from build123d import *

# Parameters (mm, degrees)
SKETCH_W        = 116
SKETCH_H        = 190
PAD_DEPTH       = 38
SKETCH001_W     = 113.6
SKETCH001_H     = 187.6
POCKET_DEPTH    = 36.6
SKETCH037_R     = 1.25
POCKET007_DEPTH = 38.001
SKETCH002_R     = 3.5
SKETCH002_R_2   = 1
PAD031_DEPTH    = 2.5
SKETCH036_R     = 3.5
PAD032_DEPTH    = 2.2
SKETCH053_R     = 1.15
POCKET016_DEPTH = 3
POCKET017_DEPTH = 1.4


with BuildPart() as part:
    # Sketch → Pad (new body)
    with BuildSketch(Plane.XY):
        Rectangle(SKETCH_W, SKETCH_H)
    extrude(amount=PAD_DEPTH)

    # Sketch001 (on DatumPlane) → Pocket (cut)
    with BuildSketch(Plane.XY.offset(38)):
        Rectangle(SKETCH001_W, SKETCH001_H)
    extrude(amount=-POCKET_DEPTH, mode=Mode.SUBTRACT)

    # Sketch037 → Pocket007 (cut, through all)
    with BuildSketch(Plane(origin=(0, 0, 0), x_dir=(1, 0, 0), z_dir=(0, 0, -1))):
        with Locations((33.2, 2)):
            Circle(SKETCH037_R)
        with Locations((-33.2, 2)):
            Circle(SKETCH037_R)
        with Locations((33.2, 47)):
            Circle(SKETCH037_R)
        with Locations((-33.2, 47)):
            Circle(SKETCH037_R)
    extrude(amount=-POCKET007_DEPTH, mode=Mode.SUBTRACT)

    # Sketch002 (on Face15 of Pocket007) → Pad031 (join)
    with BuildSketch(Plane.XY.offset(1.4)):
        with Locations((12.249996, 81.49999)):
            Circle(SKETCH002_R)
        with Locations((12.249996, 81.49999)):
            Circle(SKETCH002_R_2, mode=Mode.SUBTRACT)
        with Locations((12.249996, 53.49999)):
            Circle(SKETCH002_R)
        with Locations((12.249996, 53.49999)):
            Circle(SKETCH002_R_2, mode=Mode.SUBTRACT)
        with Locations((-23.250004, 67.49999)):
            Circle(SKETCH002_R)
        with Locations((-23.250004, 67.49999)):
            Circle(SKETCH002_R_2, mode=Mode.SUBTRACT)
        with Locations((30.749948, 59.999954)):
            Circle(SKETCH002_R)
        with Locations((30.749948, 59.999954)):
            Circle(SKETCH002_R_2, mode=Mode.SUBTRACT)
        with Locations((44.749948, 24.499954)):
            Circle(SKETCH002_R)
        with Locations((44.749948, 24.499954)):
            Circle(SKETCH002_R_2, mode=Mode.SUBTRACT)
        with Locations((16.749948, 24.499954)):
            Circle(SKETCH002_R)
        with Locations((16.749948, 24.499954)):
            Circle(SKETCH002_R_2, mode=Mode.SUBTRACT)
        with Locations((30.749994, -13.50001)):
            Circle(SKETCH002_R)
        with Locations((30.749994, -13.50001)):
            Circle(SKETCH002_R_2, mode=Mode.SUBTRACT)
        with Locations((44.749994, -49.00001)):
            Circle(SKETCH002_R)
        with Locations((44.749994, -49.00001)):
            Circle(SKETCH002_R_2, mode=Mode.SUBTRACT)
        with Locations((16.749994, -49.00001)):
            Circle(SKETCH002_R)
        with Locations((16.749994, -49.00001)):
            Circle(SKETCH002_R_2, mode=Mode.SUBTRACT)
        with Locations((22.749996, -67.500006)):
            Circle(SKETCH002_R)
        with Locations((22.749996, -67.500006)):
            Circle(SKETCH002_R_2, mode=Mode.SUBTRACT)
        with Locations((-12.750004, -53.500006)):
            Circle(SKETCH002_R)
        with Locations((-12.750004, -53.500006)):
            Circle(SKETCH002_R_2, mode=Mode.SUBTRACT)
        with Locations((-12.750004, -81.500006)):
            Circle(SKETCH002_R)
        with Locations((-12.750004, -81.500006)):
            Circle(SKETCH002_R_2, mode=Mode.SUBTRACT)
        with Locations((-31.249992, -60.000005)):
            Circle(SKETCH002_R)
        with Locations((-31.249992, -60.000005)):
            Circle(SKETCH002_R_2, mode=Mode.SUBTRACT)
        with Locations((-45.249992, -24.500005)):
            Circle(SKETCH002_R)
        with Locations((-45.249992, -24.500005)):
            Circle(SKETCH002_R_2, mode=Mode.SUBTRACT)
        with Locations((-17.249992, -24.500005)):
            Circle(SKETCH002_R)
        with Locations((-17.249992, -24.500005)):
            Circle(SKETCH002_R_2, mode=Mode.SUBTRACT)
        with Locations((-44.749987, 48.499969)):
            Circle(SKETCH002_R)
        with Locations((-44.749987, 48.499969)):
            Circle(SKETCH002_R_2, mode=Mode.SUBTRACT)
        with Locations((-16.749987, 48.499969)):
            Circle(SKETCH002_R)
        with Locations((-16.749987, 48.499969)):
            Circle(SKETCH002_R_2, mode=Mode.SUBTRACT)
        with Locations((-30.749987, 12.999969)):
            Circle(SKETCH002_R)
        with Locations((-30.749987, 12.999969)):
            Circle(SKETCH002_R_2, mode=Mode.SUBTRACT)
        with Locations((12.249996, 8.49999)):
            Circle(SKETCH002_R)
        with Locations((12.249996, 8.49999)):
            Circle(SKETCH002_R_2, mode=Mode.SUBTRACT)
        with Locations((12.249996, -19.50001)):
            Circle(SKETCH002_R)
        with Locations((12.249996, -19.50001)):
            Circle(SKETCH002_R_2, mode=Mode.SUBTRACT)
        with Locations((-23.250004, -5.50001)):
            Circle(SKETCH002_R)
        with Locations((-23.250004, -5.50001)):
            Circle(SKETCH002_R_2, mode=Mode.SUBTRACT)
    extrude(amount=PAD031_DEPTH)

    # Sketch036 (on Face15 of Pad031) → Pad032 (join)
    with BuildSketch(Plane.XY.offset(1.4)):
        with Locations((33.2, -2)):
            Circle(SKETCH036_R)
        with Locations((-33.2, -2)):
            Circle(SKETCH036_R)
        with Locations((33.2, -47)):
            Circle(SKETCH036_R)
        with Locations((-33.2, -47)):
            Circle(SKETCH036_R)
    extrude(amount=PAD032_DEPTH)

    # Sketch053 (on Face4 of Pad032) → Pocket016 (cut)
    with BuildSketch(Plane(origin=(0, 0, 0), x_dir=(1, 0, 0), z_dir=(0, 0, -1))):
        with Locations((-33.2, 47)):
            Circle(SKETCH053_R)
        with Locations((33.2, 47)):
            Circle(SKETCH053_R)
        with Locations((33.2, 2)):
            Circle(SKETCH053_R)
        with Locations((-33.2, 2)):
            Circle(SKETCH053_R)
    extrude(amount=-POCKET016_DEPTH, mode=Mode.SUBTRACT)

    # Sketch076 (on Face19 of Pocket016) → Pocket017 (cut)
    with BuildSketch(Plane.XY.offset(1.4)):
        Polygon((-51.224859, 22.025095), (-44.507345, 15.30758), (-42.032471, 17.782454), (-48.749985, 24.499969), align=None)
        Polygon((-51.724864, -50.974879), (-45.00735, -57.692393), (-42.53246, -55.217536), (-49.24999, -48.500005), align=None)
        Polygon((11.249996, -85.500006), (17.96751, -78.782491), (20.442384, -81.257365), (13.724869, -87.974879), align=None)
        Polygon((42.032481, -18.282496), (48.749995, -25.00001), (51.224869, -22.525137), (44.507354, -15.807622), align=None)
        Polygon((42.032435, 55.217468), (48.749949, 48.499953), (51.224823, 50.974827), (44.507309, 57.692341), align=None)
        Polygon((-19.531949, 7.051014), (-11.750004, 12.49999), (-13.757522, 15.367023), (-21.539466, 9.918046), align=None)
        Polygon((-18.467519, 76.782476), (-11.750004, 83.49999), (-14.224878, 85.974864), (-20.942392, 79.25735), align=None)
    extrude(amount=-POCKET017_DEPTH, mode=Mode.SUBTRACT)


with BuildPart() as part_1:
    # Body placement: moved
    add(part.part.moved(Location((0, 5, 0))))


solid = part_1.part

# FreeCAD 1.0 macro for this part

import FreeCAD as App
import Part
import Sketcher

V = App.Vector
Q = App.Units.Quantity

doc = App.newDocument("Part")
body = doc.addObject("PartDesign::Body", "Body")

# Sketch on XY plane
sketch1 = body.newObject("Sketcher::SketchObject", "Sketch")
sketch1.AttachmentSupport = (doc.getObject("XY_Plane"), [""])
sketch1.MapMode = "FlatFace"
sketch1.addGeometry(Part.LineSegment(V(-58, 95, 0), V(-58, -95, 0)), False)
sketch1.addGeometry(Part.LineSegment(V(-58, -95, 0), V(58, -95, 0)), False)
sketch1.addGeometry(Part.LineSegment(V(58, -95, 0), V(58, 95, 0)), False)
sketch1.addGeometry(Part.LineSegment(V(58, 95, 0), V(-58, 95, 0)), False)
sketch1.addConstraint(Sketcher.Constraint("Coincident", 0, 2, 1, 1))
sketch1.addConstraint(Sketcher.Constraint("Coincident", 1, 2, 2, 1))
sketch1.addConstraint(Sketcher.Constraint("Coincident", 2, 2, 3, 1))
sketch1.addConstraint(Sketcher.Constraint("Coincident", 3, 2, 0, 1))
sketch1.addConstraint(Sketcher.Constraint("Vertical", 0))
sketch1.addConstraint(Sketcher.Constraint("Horizontal", 1))
sketch1.addConstraint(Sketcher.Constraint("Vertical", 2))
sketch1.addConstraint(Sketcher.Constraint("Horizontal", 3))
sketch1.addConstraint(Sketcher.Constraint("Symmetric", 0, 2, 2, 2, -1, 1))
sketch1.addConstraint(Sketcher.Constraint("DistanceX", 1, 1, 1, 2, 116.0))
sketch1.addConstraint(Sketcher.Constraint("DistanceY", 0, 2, 0, 1, 190.0))
pad1 = body.newObject("PartDesign::Pad", "Pad")
pad1.Profile = sketch1
pad1.Length = 38

# Sketch on XY plane
sketch2 = body.newObject("Sketcher::SketchObject", "Sketch001")
sketch2.AttachmentSupport = (doc.getObject("XY_Plane"), [""])
sketch2.MapMode = "FlatFace"
sketch2.AttachmentOffset = App.Placement(V(0, 0, 38), App.Rotation())
sketch2.addGeometry(Part.LineSegment(V(-57, 94, 0), V(-57, -94, 0)), False)
sketch2.addGeometry(Part.LineSegment(V(-57, -94, 0), V(57, -94, 0)), False)
sketch2.addGeometry(Part.LineSegment(V(57, -94, 0), V(57, 94, 0)), False)
sketch2.addGeometry(Part.LineSegment(V(57, 94, 0), V(-57, 94, 0)), False)
sketch2.addConstraint(Sketcher.Constraint("Coincident", 0, 2, 1, 1))
sketch2.addConstraint(Sketcher.Constraint("Coincident", 1, 2, 2, 1))
sketch2.addConstraint(Sketcher.Constraint("Coincident", 2, 2, 3, 1))
sketch2.addConstraint(Sketcher.Constraint("Coincident", 3, 2, 0, 1))
sketch2.addConstraint(Sketcher.Constraint("Vertical", 0))
sketch2.addConstraint(Sketcher.Constraint("Horizontal", 1))
sketch2.addConstraint(Sketcher.Constraint("Vertical", 2))
sketch2.addConstraint(Sketcher.Constraint("Horizontal", 3))
sketch2.addConstraint(Sketcher.Constraint("Symmetric", 0, 2, 2, 2, -1, 1))
sketch2.addConstraint(Sketcher.Constraint("DistanceX", 1, 1, 1, 2, 113.6))
sketch2.addConstraint(Sketcher.Constraint("DistanceY", 0, 2, 0, 1, 187.6))
pocket1 = body.newObject("PartDesign::Pocket", "Pocket")
pocket1.Profile = sketch2
pocket1.Length = 36.6

# Sketch on XY plane
sketch3 = body.newObject("Sketcher::SketchObject", "Sketch002")
sketch3.AttachmentSupport = (doc.getObject("XY_Plane"), [""])
sketch3.MapMode = "FlatFace"
sketch3.addGeometry(Part.Circle(V(33.2, -2, 0), V(0, 0, 1), 1.2), False)
sketch3.addGeometry(Part.Circle(V(-33.2, -2, 0), V(0, 0, 1), 1.2), False)
sketch3.addGeometry(Part.Circle(V(33.2, -47, 0), V(0, 0, 1), 1.2), False)
sketch3.addGeometry(Part.Circle(V(-33.2, -47, 0), V(0, 0, 1), 1.2), False)
sketch3.addConstraint(Sketcher.Constraint("Equal", 0, 1))
sketch3.addConstraint(Sketcher.Constraint("Equal", 1, 2))
sketch3.addConstraint(Sketcher.Constraint("Equal", 2, 3))
sketch3.addConstraint(Sketcher.Constraint("Symmetric", 0, 3, 1, 3, -2))
sketch3.addConstraint(Sketcher.Constraint("Symmetric", 2, 3, 3, 3, -2))
sketch3.addConstraint(Sketcher.Constraint("Vertical", 0, 3, 2, 3))
sketch3.addConstraint(Sketcher.Constraint("Diameter", 0, 2.5))
sketch3.addConstraint(Sketcher.Constraint("DistanceY", 0, 3, -1, 1, 2.0))
sketch3.addConstraint(Sketcher.Constraint("DistanceY", 2, 3, -1, 1, 47.0))
sketch3.addConstraint(Sketcher.Constraint("DistanceX", -1, 1, 0, 3, 33.2))
pocket2 = body.newObject("PartDesign::Pocket", "Pocket001")
pocket2.Profile = sketch3
pocket2.Type = "ThroughAll"
pocket2.Reversed = True

# Sketch on XY plane
sketch4 = body.newObject("Sketcher::SketchObject", "Sketch003")
sketch4.AttachmentSupport = (doc.getObject("XY_Plane"), [""])
sketch4.MapMode = "FlatFace"
sketch4.AttachmentOffset = App.Placement(V(0, 0, 1.4), App.Rotation())
sketch4.addGeometry(Part.Circle(V(12.2, 81.5, 0), V(0, 0, 1), 3.5), False)
sketch4.addGeometry(Part.Circle(V(12.2, 81.5, 0), V(0, 0, 1), 1), False)
sketch4.addGeometry(Part.Circle(V(12.2, 53.5, 0), V(0, 0, 1), 3.5), False)
sketch4.addGeometry(Part.Circle(V(12.2, 53.5, 0), V(0, 0, 1), 1), False)
sketch4.addGeometry(Part.Circle(V(-23.3, 67.5, 0), V(0, 0, 1), 3.5), False)
sketch4.addGeometry(Part.Circle(V(-23.3, 67.5, 0), V(0, 0, 1), 1), False)
sketch4.addGeometry(Part.Circle(V(30.7, 60, 0), V(0, 0, 1), 3.5), False)
sketch4.addGeometry(Part.Circle(V(30.7, 60, 0), V(0, 0, 1), 1), False)
sketch4.addGeometry(Part.Circle(V(44.7, 24.5, 0), V(0, 0, 1), 3.5), False)
sketch4.addGeometry(Part.Circle(V(44.7, 24.5, 0), V(0, 0, 1), 1), False)
sketch4.addGeometry(Part.Circle(V(16.7, 24.5, 0), V(0, 0, 1), 3.5), False)
sketch4.addGeometry(Part.Circle(V(16.7, 24.5, 0), V(0, 0, 1), 1), False)
sketch4.addGeometry(Part.Circle(V(30.7, -13.5, 0), V(0, 0, 1), 3.5), False)
sketch4.addGeometry(Part.Circle(V(30.7, -13.5, 0), V(0, 0, 1), 1), False)
sketch4.addGeometry(Part.Circle(V(44.7, -49, 0), V(0, 0, 1), 3.5), False)
sketch4.addGeometry(Part.Circle(V(44.7, -49, 0), V(0, 0, 1), 1), False)
sketch4.addGeometry(Part.Circle(V(16.7, -49, 0), V(0, 0, 1), 3.5), False)
sketch4.addGeometry(Part.Circle(V(16.7, -49, 0), V(0, 0, 1), 1), False)
sketch4.addGeometry(Part.Circle(V(22.7, -67.5, 0), V(0, 0, 1), 3.5), False)
sketch4.addGeometry(Part.Circle(V(22.7, -67.5, 0), V(0, 0, 1), 1), False)
sketch4.addGeometry(Part.Circle(V(-12.8, -53.5, 0), V(0, 0, 1), 3.5), False)
sketch4.addGeometry(Part.Circle(V(-12.8, -53.5, 0), V(0, 0, 1), 1), False)
sketch4.addGeometry(Part.Circle(V(-12.8, -81.5, 0), V(0, 0, 1), 3.5), False)
sketch4.addGeometry(Part.Circle(V(-12.8, -81.5, 0), V(0, 0, 1), 1), False)
sketch4.addGeometry(Part.Circle(V(-31.2, -60, 0), V(0, 0, 1), 3.5), False)
sketch4.addGeometry(Part.Circle(V(-31.2, -60, 0), V(0, 0, 1), 1), False)
sketch4.addGeometry(Part.Circle(V(-45.2, -24.5, 0), V(0, 0, 1), 3.5), False)
sketch4.addGeometry(Part.Circle(V(-45.2, -24.5, 0), V(0, 0, 1), 1), False)
sketch4.addGeometry(Part.Circle(V(-17.2, -24.5, 0), V(0, 0, 1), 3.5), False)
sketch4.addGeometry(Part.Circle(V(-17.2, -24.5, 0), V(0, 0, 1), 1), False)
sketch4.addGeometry(Part.Circle(V(-44.7, 48.5, 0), V(0, 0, 1), 3.5), False)
sketch4.addGeometry(Part.Circle(V(-44.7, 48.5, 0), V(0, 0, 1), 1), False)
sketch4.addGeometry(Part.Circle(V(-16.7, 48.5, 0), V(0, 0, 1), 3.5), False)
sketch4.addGeometry(Part.Circle(V(-16.7, 48.5, 0), V(0, 0, 1), 1), False)
sketch4.addGeometry(Part.Circle(V(-30.7, 13, 0), V(0, 0, 1), 3.5), False)
sketch4.addGeometry(Part.Circle(V(-30.7, 13, 0), V(0, 0, 1), 1), False)
sketch4.addGeometry(Part.Circle(V(12.2, 8.5, 0), V(0, 0, 1), 3.5), False)
sketch4.addGeometry(Part.Circle(V(12.2, 8.5, 0), V(0, 0, 1), 1), False)
sketch4.addGeometry(Part.Circle(V(12.2, -19.5, 0), V(0, 0, 1), 3.5), False)
sketch4.addGeometry(Part.Circle(V(12.2, -19.5, 0), V(0, 0, 1), 1), False)
sketch4.addGeometry(Part.Circle(V(-23.3, -5.5, 0), V(0, 0, 1), 3.5), False)
sketch4.addGeometry(Part.Circle(V(-23.3, -5.5, 0), V(0, 0, 1), 1), False)
sketch4.addConstraint(Sketcher.Constraint("Coincident", 1, 3, 0, 3))
sketch4.addConstraint(Sketcher.Constraint("Coincident", 3, 3, 2, 3))
sketch4.addConstraint(Sketcher.Constraint("Coincident", 5, 3, 4, 3))
sketch4.addConstraint(Sketcher.Constraint("Coincident", 7, 3, 6, 3))
sketch4.addConstraint(Sketcher.Constraint("Coincident", 9, 3, 8, 3))
sketch4.addConstraint(Sketcher.Constraint("Coincident", 11, 3, 10, 3))
sketch4.addConstraint(Sketcher.Constraint("Coincident", 13, 3, 12, 3))
sketch4.addConstraint(Sketcher.Constraint("Coincident", 15, 3, 14, 3))
sketch4.addConstraint(Sketcher.Constraint("Coincident", 17, 3, 16, 3))
sketch4.addConstraint(Sketcher.Constraint("Coincident", 19, 3, 18, 3))
sketch4.addConstraint(Sketcher.Constraint("Coincident", 21, 3, 20, 3))
sketch4.addConstraint(Sketcher.Constraint("Coincident", 23, 3, 22, 3))
sketch4.addConstraint(Sketcher.Constraint("Coincident", 25, 3, 24, 3))
sketch4.addConstraint(Sketcher.Constraint("Coincident", 27, 3, 26, 3))
sketch4.addConstraint(Sketcher.Constraint("Coincident", 29, 3, 28, 3))
sketch4.addConstraint(Sketcher.Constraint("Coincident", 31, 3, 30, 3))
sketch4.addConstraint(Sketcher.Constraint("Coincident", 33, 3, 32, 3))
sketch4.addConstraint(Sketcher.Constraint("Coincident", 35, 3, 34, 3))
sketch4.addConstraint(Sketcher.Constraint("Coincident", 37, 3, 36, 3))
sketch4.addConstraint(Sketcher.Constraint("Coincident", 39, 3, 38, 3))
sketch4.addConstraint(Sketcher.Constraint("Coincident", 41, 3, 40, 3))
sketch4.addConstraint(Sketcher.Constraint("Equal", 0, 2))
sketch4.addConstraint(Sketcher.Constraint("Equal", 1, 3))
sketch4.addConstraint(Sketcher.Constraint("Equal", 2, 4))
sketch4.addConstraint(Sketcher.Constraint("Equal", 3, 5))
sketch4.addConstraint(Sketcher.Constraint("Equal", 4, 6))
sketch4.addConstraint(Sketcher.Constraint("Equal", 5, 7))
sketch4.addConstraint(Sketcher.Constraint("Equal", 6, 8))
sketch4.addConstraint(Sketcher.Constraint("Equal", 7, 9))
sketch4.addConstraint(Sketcher.Constraint("Equal", 8, 10))
sketch4.addConstraint(Sketcher.Constraint("Equal", 9, 11))
sketch4.addConstraint(Sketcher.Constraint("Equal", 10, 12))
sketch4.addConstraint(Sketcher.Constraint("Equal", 11, 13))
sketch4.addConstraint(Sketcher.Constraint("Equal", 12, 14))
sketch4.addConstraint(Sketcher.Constraint("Equal", 13, 15))
sketch4.addConstraint(Sketcher.Constraint("Equal", 14, 16))
sketch4.addConstraint(Sketcher.Constraint("Equal", 15, 17))
sketch4.addConstraint(Sketcher.Constraint("Equal", 16, 18))
sketch4.addConstraint(Sketcher.Constraint("Equal", 17, 19))
sketch4.addConstraint(Sketcher.Constraint("Equal", 18, 20))
sketch4.addConstraint(Sketcher.Constraint("Equal", 19, 21))
sketch4.addConstraint(Sketcher.Constraint("Equal", 20, 22))
sketch4.addConstraint(Sketcher.Constraint("Equal", 21, 23))
sketch4.addConstraint(Sketcher.Constraint("Equal", 22, 24))
sketch4.addConstraint(Sketcher.Constraint("Equal", 23, 25))
sketch4.addConstraint(Sketcher.Constraint("Equal", 24, 26))
sketch4.addConstraint(Sketcher.Constraint("Equal", 25, 27))
sketch4.addConstraint(Sketcher.Constraint("Equal", 26, 28))
sketch4.addConstraint(Sketcher.Constraint("Equal", 27, 29))
sketch4.addConstraint(Sketcher.Constraint("Equal", 28, 30))
sketch4.addConstraint(Sketcher.Constraint("Equal", 29, 31))
sketch4.addConstraint(Sketcher.Constraint("Equal", 30, 32))
sketch4.addConstraint(Sketcher.Constraint("Equal", 31, 33))
sketch4.addConstraint(Sketcher.Constraint("Equal", 32, 34))
sketch4.addConstraint(Sketcher.Constraint("Equal", 33, 35))
sketch4.addConstraint(Sketcher.Constraint("Equal", 34, 36))
sketch4.addConstraint(Sketcher.Constraint("Equal", 35, 37))
sketch4.addConstraint(Sketcher.Constraint("Equal", 36, 38))
sketch4.addConstraint(Sketcher.Constraint("Equal", 37, 39))
sketch4.addConstraint(Sketcher.Constraint("Equal", 38, 40))
sketch4.addConstraint(Sketcher.Constraint("Equal", 39, 41))
sketch4.addConstraint(Sketcher.Constraint("Horizontal", 9, 3, 10, 3))
sketch4.addConstraint(Sketcher.Constraint("Horizontal", 15, 3, 16, 3))
sketch4.addConstraint(Sketcher.Constraint("Horizontal", 27, 3, 28, 3))
sketch4.addConstraint(Sketcher.Constraint("Horizontal", 31, 3, 32, 3))
sketch4.addConstraint(Sketcher.Constraint("Vertical", 1, 3, 2, 3))
sketch4.addConstraint(Sketcher.Constraint("Vertical", 21, 3, 22, 3))
sketch4.addConstraint(Sketcher.Constraint("Vertical", 3, 3, 36, 3))
sketch4.addConstraint(Sketcher.Constraint("Vertical", 37, 3, 38, 3))
sketch4.addConstraint(Sketcher.Constraint("Vertical", 5, 3, 40, 3))
sketch4.addConstraint(Sketcher.Constraint("Diameter", 0, 7.0))
sketch4.addConstraint(Sketcher.Constraint("Diameter", 1, 2.0))
sketch4.addConstraint(Sketcher.Constraint("DistanceY", 2, 3, 0, 3, 28.0))
sketch4.addConstraint(Sketcher.Constraint("DistanceY", 4, 3, 0, 3, 14.0))
sketch4.addConstraint(Sketcher.Constraint("DistanceX", 6, 3, 8, 3, 14.0))
sketch4.addConstraint(Sketcher.Constraint("DistanceX", 10, 3, 8, 3, 28.0))
sketch4.addConstraint(Sketcher.Constraint("DistanceY", 12, 3, 2, 3, 67.0))
sketch4.addConstraint(Sketcher.Constraint("DistanceX", 12, 3, 14, 3, 14.0))
sketch4.addConstraint(Sketcher.Constraint("DistanceX", 16, 3, 14, 3, 28.0))
sketch4.addConstraint(Sketcher.Constraint("DistanceX", 16, 3, 18, 3, 6.000002))
sketch4.addConstraint(Sketcher.Constraint("DistanceY", 18, 3, 20, 3, 14.0))
sketch4.addConstraint(Sketcher.Constraint("DistanceY", 22, 3, 20, 3, 28.0))
sketch4.addConstraint(Sketcher.Constraint("DistanceX", 26, 3, 24, 3, 14.0))
sketch4.addConstraint(Sketcher.Constraint("DistanceY", 20, 3, 26, 3, 29.000001))
sketch4.addConstraint(Sketcher.Constraint("DistanceX", 26, 3, 28, 3, 28.0))
sketch4.addConstraint(Sketcher.Constraint("DistanceX", 30, 3, 32, 3, 28.0))
sketch4.addConstraint(Sketcher.Constraint("DistanceX", 30, 3, 34, 3, 14.0))
sketch4.addConstraint(Sketcher.Constraint("DistanceY", 12, 3, 36, 3, 22.0))
sketch4.addConstraint(Sketcher.Constraint("DistanceY", 38, 3, 12, 3, 6.0))
sketch4.addConstraint(Sketcher.Constraint("DistanceX", 4, 3, 0, 3, 35.5))
sketch4.addConstraint(Sketcher.Constraint("DistanceY", 8, 3, 6, 3, 35.5))
sketch4.addConstraint(Sketcher.Constraint("DistanceX", 2, 3, 12, 3, 18.499998))
sketch4.addConstraint(Sketcher.Constraint("DistanceY", 14, 3, 12, 3, 35.5))
sketch4.addConstraint(Sketcher.Constraint("DistanceX", 20, 3, 16, 3, 29.499998))
sketch4.addConstraint(Sketcher.Constraint("DistanceY", 24, 3, 20, 3, 6.499999))
sketch4.addConstraint(Sketcher.Constraint("DistanceY", 34, 3, 30, 3, 35.5))
sketch4.addConstraint(Sketcher.Constraint("DistanceY", -1, 1, 0, 3, 81.49999))
sketch4.addConstraint(Sketcher.Constraint("DistanceX", -1, 1, 6, 3, 30.749948))
sketch4.addConstraint(Sketcher.Constraint("DistanceX", 24, 3, -1, 1, 31.249992))
sketch4.addConstraint(Sketcher.Constraint("DistanceY", -1, 1, 30, 3, 48.499969))
sketch4.addConstraint(Sketcher.Constraint("DistanceY", 40, 3, -1, 1, 5.50001))
sketch4.addConstraint(Sketcher.Constraint("DistanceX", 26, 3, 20, 3, 32.499988))
sketch4.addConstraint(Sketcher.Constraint("DistanceY", -1, 1, 6, 3, 59.999954))
sketch4.addConstraint(Sketcher.Constraint("DistanceY", 18, 3, -1, 1, 67.500006))
sketch4.addConstraint(Sketcher.Constraint("DistanceX", 30, 3, -1, 1, 44.749987))
pad2 = body.newObject("PartDesign::Pad", "Pad001")
pad2.Profile = sketch4
pad2.Length = 2.5

# Sketch on XY plane
sketch5 = body.newObject("Sketcher::SketchObject", "Sketch004")
sketch5.AttachmentSupport = (doc.getObject("XY_Plane"), [""])
sketch5.MapMode = "FlatFace"
sketch5.AttachmentOffset = App.Placement(V(0, 0, 1.4), App.Rotation())
sketch5.addGeometry(Part.Circle(V(33.2, -2, 0), V(0, 0, 1), 3.5), False)
sketch5.addGeometry(Part.Circle(V(-33.2, -2, 0), V(0, 0, 1), 3.5), False)
sketch5.addGeometry(Part.Circle(V(33.2, -47, 0), V(0, 0, 1), 3.5), False)
sketch5.addGeometry(Part.Circle(V(-33.2, -47, 0), V(0, 0, 1), 3.5), False)
sketch5.addConstraint(Sketcher.Constraint("Equal", 0, 1))
sketch5.addConstraint(Sketcher.Constraint("Equal", 1, 2))
sketch5.addConstraint(Sketcher.Constraint("Equal", 2, 3))
sketch5.addConstraint(Sketcher.Constraint("Symmetric", 0, 3, 1, 3, -2))
sketch5.addConstraint(Sketcher.Constraint("Symmetric", 2, 3, 3, 3, -2))
sketch5.addConstraint(Sketcher.Constraint("Vertical", 0, 3, 2, 3))
sketch5.addConstraint(Sketcher.Constraint("Diameter", 0, 7.0))
sketch5.addConstraint(Sketcher.Constraint("DistanceY", 0, 3, -1, 1, 2.0))
sketch5.addConstraint(Sketcher.Constraint("DistanceY", 2, 3, -1, 1, 47.0))
sketch5.addConstraint(Sketcher.Constraint("DistanceX", -1, 1, 0, 3, 33.2))
pad3 = body.newObject("PartDesign::Pad", "Pad002")
pad3.Profile = sketch5
pad3.Length = 2.2

# Sketch on XY plane
sketch6 = body.newObject("Sketcher::SketchObject", "Sketch005")
sketch6.AttachmentSupport = (doc.getObject("XY_Plane"), [""])
sketch6.MapMode = "FlatFace"
sketch6.addGeometry(Part.Circle(V(-33.2, -47, 0), V(0, 0, 1), 1.1), False)
sketch6.addGeometry(Part.Circle(V(33.2, -47, 0), V(0, 0, 1), 1.1), False)
sketch6.addGeometry(Part.Circle(V(33.2, -2, 0), V(0, 0, 1), 1.1), False)
sketch6.addGeometry(Part.Circle(V(-33.2, -2, 0), V(0, 0, 1), 1.1), False)
sketch6.addConstraint(Sketcher.Constraint("Equal", 0, 1))
sketch6.addConstraint(Sketcher.Constraint("Equal", 1, 2))
sketch6.addConstraint(Sketcher.Constraint("Equal", 2, 3))
sketch6.addConstraint(Sketcher.Constraint("Symmetric", 0, 3, 1, 3, -2))
sketch6.addConstraint(Sketcher.Constraint("Symmetric", 2, 3, 3, 3, -2))
sketch6.addConstraint(Sketcher.Constraint("Vertical", 1, 3, 2, 3))
sketch6.addConstraint(Sketcher.Constraint("Diameter", 0, 2.3))
sketch6.addConstraint(Sketcher.Constraint("DistanceY", 0, 3, -1, 1, 47.0))
sketch6.addConstraint(Sketcher.Constraint("DistanceY", 2, 3, -1, 1, 2.0))
sketch6.addConstraint(Sketcher.Constraint("DistanceX", 0, 3, -1, 1, 33.2))
pocket3 = body.newObject("PartDesign::Pocket", "Pocket002")
pocket3.Profile = sketch6
pocket3.Length = 3
pocket3.Reversed = True

# Sketch on XY plane
sketch7 = body.newObject("Sketcher::SketchObject", "Sketch006")
sketch7.AttachmentSupport = (doc.getObject("XY_Plane"), [""])
sketch7.MapMode = "FlatFace"
sketch7.AttachmentOffset = App.Placement(V(0, 0, 1.4), App.Rotation())
sketch7.addGeometry(Part.LineSegment(V(-51.2, 22, 0), V(-44.5, 15.3, 0)), False)
sketch7.addGeometry(Part.LineSegment(V(-44.5, 15.3, 0), V(-42, 17.8, 0)), False)
sketch7.addGeometry(Part.LineSegment(V(-42, 17.8, 0), V(-48.7, 24.5, 0)), False)
sketch7.addGeometry(Part.LineSegment(V(-48.7, 24.5, 0), V(-51.2, 22, 0)), False)
sketch7.addGeometry(Part.LineSegment(V(-51.7, -51, 0), V(-45, -57.7, 0)), False)
sketch7.addGeometry(Part.LineSegment(V(-45, -57.7, 0), V(-42.5, -55.2, 0)), False)
sketch7.addGeometry(Part.LineSegment(V(-42.5, -55.2, 0), V(-49.2, -48.5, 0)), False)
sketch7.addGeometry(Part.LineSegment(V(-49.2, -48.5, 0), V(-51.7, -51, 0)), False)
sketch7.addGeometry(Part.LineSegment(V(18, -78.8, 0), V(11.2, -85.5, 0)), False)
sketch7.addGeometry(Part.LineSegment(V(11.2, -85.5, 0), V(13.7, -88, 0)), False)
sketch7.addGeometry(Part.LineSegment(V(13.7, -88, 0), V(20.4, -81.3, 0)), False)
sketch7.addGeometry(Part.LineSegment(V(20.4, -81.3, 0), V(18, -78.8, 0)), False)
sketch7.addGeometry(Part.LineSegment(V(42, -18.3, 0), V(48.7, -25, 0)), False)
sketch7.addGeometry(Part.LineSegment(V(48.7, -25, 0), V(51.2, -22.5, 0)), False)
sketch7.addGeometry(Part.LineSegment(V(51.2, -22.5, 0), V(44.5, -15.8, 0)), False)
sketch7.addGeometry(Part.LineSegment(V(44.5, -15.8, 0), V(42, -18.3, 0)), False)
sketch7.addGeometry(Part.LineSegment(V(42, 55.2, 0), V(48.7, 48.5, 0)), False)
sketch7.addGeometry(Part.LineSegment(V(48.7, 48.5, 0), V(51.2, 51, 0)), False)
sketch7.addGeometry(Part.LineSegment(V(51.2, 51, 0), V(44.5, 57.7, 0)), False)
sketch7.addGeometry(Part.LineSegment(V(44.5, 57.7, 0), V(42, 55.2, 0)), False)
sketch7.addGeometry(Part.LineSegment(V(-19.5, 7.1, 0), V(-11.8, 12.5, 0)), False)
sketch7.addGeometry(Part.LineSegment(V(-11.8, 12.5, 0), V(-13.8, 15.4, 0)), False)
sketch7.addGeometry(Part.LineSegment(V(-13.8, 15.4, 0), V(-21.5, 9.9, 0)), False)
sketch7.addGeometry(Part.LineSegment(V(-21.5, 9.9, 0), V(-19.5, 7.1, 0)), False)
sketch7.addGeometry(Part.LineSegment(V(-18.5, 76.8, 0), V(-11.8, 83.5, 0)), False)
sketch7.addGeometry(Part.LineSegment(V(-11.8, 83.5, 0), V(-14.2, 86, 0)), False)
sketch7.addGeometry(Part.LineSegment(V(-14.2, 86, 0), V(-20.9, 79.3, 0)), False)
sketch7.addGeometry(Part.LineSegment(V(-20.9, 79.3, 0), V(-18.5, 76.8, 0)), False)
sketch7.addConstraint(Sketcher.Constraint("Coincident", 0, 2, 1, 1))
sketch7.addConstraint(Sketcher.Constraint("Coincident", 1, 2, 2, 1))
sketch7.addConstraint(Sketcher.Constraint("Coincident", 2, 2, 3, 1))
sketch7.addConstraint(Sketcher.Constraint("Coincident", 3, 2, 0, 1))
sketch7.addConstraint(Sketcher.Constraint("Coincident", 4, 2, 5, 1))
sketch7.addConstraint(Sketcher.Constraint("Coincident", 5, 2, 6, 1))
sketch7.addConstraint(Sketcher.Constraint("Coincident", 6, 2, 7, 1))
sketch7.addConstraint(Sketcher.Constraint("Coincident", 7, 2, 4, 1))
sketch7.addConstraint(Sketcher.Constraint("Coincident", 8, 2, 9, 1))
sketch7.addConstraint(Sketcher.Constraint("Coincident", 9, 2, 10, 1))
sketch7.addConstraint(Sketcher.Constraint("Coincident", 10, 2, 11, 1))
sketch7.addConstraint(Sketcher.Constraint("Coincident", 11, 2, 8, 1))
sketch7.addConstraint(Sketcher.Constraint("Coincident", 12, 2, 13, 1))
sketch7.addConstraint(Sketcher.Constraint("Coincident", 13, 2, 14, 1))
sketch7.addConstraint(Sketcher.Constraint("Coincident", 14, 2, 15, 1))
sketch7.addConstraint(Sketcher.Constraint("Coincident", 15, 2, 12, 1))
sketch7.addConstraint(Sketcher.Constraint("Coincident", 16, 2, 17, 1))
sketch7.addConstraint(Sketcher.Constraint("Coincident", 17, 2, 18, 1))
sketch7.addConstraint(Sketcher.Constraint("Coincident", 18, 2, 19, 1))
sketch7.addConstraint(Sketcher.Constraint("Coincident", 19, 2, 16, 1))
sketch7.addConstraint(Sketcher.Constraint("Coincident", 20, 2, 21, 1))
sketch7.addConstraint(Sketcher.Constraint("Coincident", 21, 2, 22, 1))
sketch7.addConstraint(Sketcher.Constraint("Coincident", 22, 2, 23, 1))
sketch7.addConstraint(Sketcher.Constraint("Coincident", 23, 2, 20, 1))
sketch7.addConstraint(Sketcher.Constraint("Coincident", 24, 2, 25, 1))
sketch7.addConstraint(Sketcher.Constraint("Coincident", 25, 2, 26, 1))
sketch7.addConstraint(Sketcher.Constraint("Coincident", 26, 2, 27, 1))
sketch7.addConstraint(Sketcher.Constraint("Coincident", 27, 2, 24, 1))
sketch7.addConstraint(Sketcher.Constraint("Perpendicular", 0, 1))
sketch7.addConstraint(Sketcher.Constraint("Perpendicular", 1, 2))
sketch7.addConstraint(Sketcher.Constraint("Perpendicular", 2, 3))
sketch7.addConstraint(Sketcher.Constraint("Perpendicular", 3, 4))
sketch7.addConstraint(Sketcher.Constraint("Parallel", 4, 6))
sketch7.addConstraint(Sketcher.Constraint("Perpendicular", 6, 7))
sketch7.addConstraint(Sketcher.Constraint("Parallel", 7, 8))
sketch7.addConstraint(Sketcher.Constraint("Perpendicular", 8, 9))
sketch7.addConstraint(Sketcher.Constraint("Perpendicular", 9, 10))
sketch7.addConstraint(Sketcher.Constraint("Perpendicular", 10, 11))
sketch7.addConstraint(Sketcher.Constraint("Parallel", 11, 12))
sketch7.addConstraint(Sketcher.Constraint("Perpendicular", 12, 13))
sketch7.addConstraint(Sketcher.Constraint("Perpendicular", 13, 14))
sketch7.addConstraint(Sketcher.Constraint("Perpendicular", 14, 15))
sketch7.addConstraint(Sketcher.Constraint("Perpendicular", 15, 16))
sketch7.addConstraint(Sketcher.Constraint("Perpendicular", 16, 17))
sketch7.addConstraint(Sketcher.Constraint("Perpendicular", 17, 18))
sketch7.addConstraint(Sketcher.Constraint("Perpendicular", 18, 19))
sketch7.addConstraint(Sketcher.Constraint("Perpendicular", 20, 21))
sketch7.addConstraint(Sketcher.Constraint("Perpendicular", 21, 22))
sketch7.addConstraint(Sketcher.Constraint("Perpendicular", 22, 23))
sketch7.addConstraint(Sketcher.Constraint("Parallel", 19, 24))
sketch7.addConstraint(Sketcher.Constraint("Perpendicular", 24, 25))
sketch7.addConstraint(Sketcher.Constraint("Perpendicular", 25, 26))
sketch7.addConstraint(Sketcher.Constraint("Perpendicular", 26, 27))
sketch7.addConstraint(Sketcher.Constraint("Vertical", 20, 2, 24, 2))
sketch7.addConstraint(Sketcher.Constraint("Equal", 2, 4))
sketch7.addConstraint(Sketcher.Constraint("Equal", 3, 5))
sketch7.addConstraint(Sketcher.Constraint("Equal", 4, 8))
sketch7.addConstraint(Sketcher.Constraint("Equal", 7, 9))
sketch7.addConstraint(Sketcher.Constraint("Equal", 10, 12))
sketch7.addConstraint(Sketcher.Constraint("Equal", 11, 13))
sketch7.addConstraint(Sketcher.Constraint("Equal", 14, 16))
sketch7.addConstraint(Sketcher.Constraint("Equal", 15, 17))
sketch7.addConstraint(Sketcher.Constraint("Equal", 18, 20))
sketch7.addConstraint(Sketcher.Constraint("Equal", 19, 21))
sketch7.addConstraint(Sketcher.Constraint("Equal", 22, 24))
sketch7.addConstraint(Sketcher.Constraint("Equal", 23, 25))
sketch7.addConstraint(Sketcher.Constraint("Angle", 0, Q("-45.000004 deg")))
sketch7.addConstraint(Sketcher.Constraint("Angle", 20, Q("34.999997 deg")))
sketch7.addConstraint(Sketcher.Constraint("DistanceY", 8, 2, 6, 2, 37.000001))
sketch7.addConstraint(Sketcher.Constraint("Distance", 0, 9.5))
sketch7.addConstraint(Sketcher.Constraint("Distance", 1, 3.5))
sketch7.addConstraint(Sketcher.Constraint("DistanceX", 8, 2, 12, 2, 37.499999))
sketch7.addConstraint(Sketcher.Constraint("DistanceX", 3, 2, 5, 2, 8.692399))
sketch7.addConstraint(Sketcher.Constraint("DistanceY", 6, 2, 3, 2, 70.5251))
sketch7.addConstraint(Sketcher.Constraint("DistanceY", 1, 2, 16, 2, 30.717499))
sketch7.addConstraint(Sketcher.Constraint("DistanceY", -1, 1, 0, 2, 15.30758))
sketch7.addConstraint(Sketcher.Constraint("DistanceX", 1, 2, -1, 1, 42.032471))
sketch7.addConstraint(Sketcher.Constraint("DistanceX", 4, 2, -1, 1, 45.00735))
sketch7.addConstraint(Sketcher.Constraint("DistanceX", -1, 1, 9, 2, 13.724869))
sketch7.addConstraint(Sketcher.Constraint("DistanceY", 12, 2, -1, 1, 25.00001))
sketch7.addConstraint(Sketcher.Constraint("DistanceX", -1, 1, 16, 2, 48.749949))
sketch7.addConstraint(Sketcher.Constraint("DistanceY", -1, 1, 20, 2, 12.49999))
sketch7.addConstraint(Sketcher.Constraint("DistanceX", 23, 2, -1, 1, 19.531949))
sketch7.addConstraint(Sketcher.Constraint("DistanceY", -1, 1, 24, 2, 83.49999))
pocket4 = body.newObject("PartDesign::Pocket", "Pocket003")
pocket4.Profile = sketch7
pocket4.Length = 1.4
body2 = doc.addObject("PartDesign::Body", "Body001")
doc.recompute()

body.Placement = App.Placement(V(0, 5, 0), App.Rotation(V(0, 0, 1), 0))
boolean = body2.newObject("PartDesign::Boolean", "Boolean")
boolean.Type = "Fuse"
boolean.addObjects([body])

doc.recompute()
